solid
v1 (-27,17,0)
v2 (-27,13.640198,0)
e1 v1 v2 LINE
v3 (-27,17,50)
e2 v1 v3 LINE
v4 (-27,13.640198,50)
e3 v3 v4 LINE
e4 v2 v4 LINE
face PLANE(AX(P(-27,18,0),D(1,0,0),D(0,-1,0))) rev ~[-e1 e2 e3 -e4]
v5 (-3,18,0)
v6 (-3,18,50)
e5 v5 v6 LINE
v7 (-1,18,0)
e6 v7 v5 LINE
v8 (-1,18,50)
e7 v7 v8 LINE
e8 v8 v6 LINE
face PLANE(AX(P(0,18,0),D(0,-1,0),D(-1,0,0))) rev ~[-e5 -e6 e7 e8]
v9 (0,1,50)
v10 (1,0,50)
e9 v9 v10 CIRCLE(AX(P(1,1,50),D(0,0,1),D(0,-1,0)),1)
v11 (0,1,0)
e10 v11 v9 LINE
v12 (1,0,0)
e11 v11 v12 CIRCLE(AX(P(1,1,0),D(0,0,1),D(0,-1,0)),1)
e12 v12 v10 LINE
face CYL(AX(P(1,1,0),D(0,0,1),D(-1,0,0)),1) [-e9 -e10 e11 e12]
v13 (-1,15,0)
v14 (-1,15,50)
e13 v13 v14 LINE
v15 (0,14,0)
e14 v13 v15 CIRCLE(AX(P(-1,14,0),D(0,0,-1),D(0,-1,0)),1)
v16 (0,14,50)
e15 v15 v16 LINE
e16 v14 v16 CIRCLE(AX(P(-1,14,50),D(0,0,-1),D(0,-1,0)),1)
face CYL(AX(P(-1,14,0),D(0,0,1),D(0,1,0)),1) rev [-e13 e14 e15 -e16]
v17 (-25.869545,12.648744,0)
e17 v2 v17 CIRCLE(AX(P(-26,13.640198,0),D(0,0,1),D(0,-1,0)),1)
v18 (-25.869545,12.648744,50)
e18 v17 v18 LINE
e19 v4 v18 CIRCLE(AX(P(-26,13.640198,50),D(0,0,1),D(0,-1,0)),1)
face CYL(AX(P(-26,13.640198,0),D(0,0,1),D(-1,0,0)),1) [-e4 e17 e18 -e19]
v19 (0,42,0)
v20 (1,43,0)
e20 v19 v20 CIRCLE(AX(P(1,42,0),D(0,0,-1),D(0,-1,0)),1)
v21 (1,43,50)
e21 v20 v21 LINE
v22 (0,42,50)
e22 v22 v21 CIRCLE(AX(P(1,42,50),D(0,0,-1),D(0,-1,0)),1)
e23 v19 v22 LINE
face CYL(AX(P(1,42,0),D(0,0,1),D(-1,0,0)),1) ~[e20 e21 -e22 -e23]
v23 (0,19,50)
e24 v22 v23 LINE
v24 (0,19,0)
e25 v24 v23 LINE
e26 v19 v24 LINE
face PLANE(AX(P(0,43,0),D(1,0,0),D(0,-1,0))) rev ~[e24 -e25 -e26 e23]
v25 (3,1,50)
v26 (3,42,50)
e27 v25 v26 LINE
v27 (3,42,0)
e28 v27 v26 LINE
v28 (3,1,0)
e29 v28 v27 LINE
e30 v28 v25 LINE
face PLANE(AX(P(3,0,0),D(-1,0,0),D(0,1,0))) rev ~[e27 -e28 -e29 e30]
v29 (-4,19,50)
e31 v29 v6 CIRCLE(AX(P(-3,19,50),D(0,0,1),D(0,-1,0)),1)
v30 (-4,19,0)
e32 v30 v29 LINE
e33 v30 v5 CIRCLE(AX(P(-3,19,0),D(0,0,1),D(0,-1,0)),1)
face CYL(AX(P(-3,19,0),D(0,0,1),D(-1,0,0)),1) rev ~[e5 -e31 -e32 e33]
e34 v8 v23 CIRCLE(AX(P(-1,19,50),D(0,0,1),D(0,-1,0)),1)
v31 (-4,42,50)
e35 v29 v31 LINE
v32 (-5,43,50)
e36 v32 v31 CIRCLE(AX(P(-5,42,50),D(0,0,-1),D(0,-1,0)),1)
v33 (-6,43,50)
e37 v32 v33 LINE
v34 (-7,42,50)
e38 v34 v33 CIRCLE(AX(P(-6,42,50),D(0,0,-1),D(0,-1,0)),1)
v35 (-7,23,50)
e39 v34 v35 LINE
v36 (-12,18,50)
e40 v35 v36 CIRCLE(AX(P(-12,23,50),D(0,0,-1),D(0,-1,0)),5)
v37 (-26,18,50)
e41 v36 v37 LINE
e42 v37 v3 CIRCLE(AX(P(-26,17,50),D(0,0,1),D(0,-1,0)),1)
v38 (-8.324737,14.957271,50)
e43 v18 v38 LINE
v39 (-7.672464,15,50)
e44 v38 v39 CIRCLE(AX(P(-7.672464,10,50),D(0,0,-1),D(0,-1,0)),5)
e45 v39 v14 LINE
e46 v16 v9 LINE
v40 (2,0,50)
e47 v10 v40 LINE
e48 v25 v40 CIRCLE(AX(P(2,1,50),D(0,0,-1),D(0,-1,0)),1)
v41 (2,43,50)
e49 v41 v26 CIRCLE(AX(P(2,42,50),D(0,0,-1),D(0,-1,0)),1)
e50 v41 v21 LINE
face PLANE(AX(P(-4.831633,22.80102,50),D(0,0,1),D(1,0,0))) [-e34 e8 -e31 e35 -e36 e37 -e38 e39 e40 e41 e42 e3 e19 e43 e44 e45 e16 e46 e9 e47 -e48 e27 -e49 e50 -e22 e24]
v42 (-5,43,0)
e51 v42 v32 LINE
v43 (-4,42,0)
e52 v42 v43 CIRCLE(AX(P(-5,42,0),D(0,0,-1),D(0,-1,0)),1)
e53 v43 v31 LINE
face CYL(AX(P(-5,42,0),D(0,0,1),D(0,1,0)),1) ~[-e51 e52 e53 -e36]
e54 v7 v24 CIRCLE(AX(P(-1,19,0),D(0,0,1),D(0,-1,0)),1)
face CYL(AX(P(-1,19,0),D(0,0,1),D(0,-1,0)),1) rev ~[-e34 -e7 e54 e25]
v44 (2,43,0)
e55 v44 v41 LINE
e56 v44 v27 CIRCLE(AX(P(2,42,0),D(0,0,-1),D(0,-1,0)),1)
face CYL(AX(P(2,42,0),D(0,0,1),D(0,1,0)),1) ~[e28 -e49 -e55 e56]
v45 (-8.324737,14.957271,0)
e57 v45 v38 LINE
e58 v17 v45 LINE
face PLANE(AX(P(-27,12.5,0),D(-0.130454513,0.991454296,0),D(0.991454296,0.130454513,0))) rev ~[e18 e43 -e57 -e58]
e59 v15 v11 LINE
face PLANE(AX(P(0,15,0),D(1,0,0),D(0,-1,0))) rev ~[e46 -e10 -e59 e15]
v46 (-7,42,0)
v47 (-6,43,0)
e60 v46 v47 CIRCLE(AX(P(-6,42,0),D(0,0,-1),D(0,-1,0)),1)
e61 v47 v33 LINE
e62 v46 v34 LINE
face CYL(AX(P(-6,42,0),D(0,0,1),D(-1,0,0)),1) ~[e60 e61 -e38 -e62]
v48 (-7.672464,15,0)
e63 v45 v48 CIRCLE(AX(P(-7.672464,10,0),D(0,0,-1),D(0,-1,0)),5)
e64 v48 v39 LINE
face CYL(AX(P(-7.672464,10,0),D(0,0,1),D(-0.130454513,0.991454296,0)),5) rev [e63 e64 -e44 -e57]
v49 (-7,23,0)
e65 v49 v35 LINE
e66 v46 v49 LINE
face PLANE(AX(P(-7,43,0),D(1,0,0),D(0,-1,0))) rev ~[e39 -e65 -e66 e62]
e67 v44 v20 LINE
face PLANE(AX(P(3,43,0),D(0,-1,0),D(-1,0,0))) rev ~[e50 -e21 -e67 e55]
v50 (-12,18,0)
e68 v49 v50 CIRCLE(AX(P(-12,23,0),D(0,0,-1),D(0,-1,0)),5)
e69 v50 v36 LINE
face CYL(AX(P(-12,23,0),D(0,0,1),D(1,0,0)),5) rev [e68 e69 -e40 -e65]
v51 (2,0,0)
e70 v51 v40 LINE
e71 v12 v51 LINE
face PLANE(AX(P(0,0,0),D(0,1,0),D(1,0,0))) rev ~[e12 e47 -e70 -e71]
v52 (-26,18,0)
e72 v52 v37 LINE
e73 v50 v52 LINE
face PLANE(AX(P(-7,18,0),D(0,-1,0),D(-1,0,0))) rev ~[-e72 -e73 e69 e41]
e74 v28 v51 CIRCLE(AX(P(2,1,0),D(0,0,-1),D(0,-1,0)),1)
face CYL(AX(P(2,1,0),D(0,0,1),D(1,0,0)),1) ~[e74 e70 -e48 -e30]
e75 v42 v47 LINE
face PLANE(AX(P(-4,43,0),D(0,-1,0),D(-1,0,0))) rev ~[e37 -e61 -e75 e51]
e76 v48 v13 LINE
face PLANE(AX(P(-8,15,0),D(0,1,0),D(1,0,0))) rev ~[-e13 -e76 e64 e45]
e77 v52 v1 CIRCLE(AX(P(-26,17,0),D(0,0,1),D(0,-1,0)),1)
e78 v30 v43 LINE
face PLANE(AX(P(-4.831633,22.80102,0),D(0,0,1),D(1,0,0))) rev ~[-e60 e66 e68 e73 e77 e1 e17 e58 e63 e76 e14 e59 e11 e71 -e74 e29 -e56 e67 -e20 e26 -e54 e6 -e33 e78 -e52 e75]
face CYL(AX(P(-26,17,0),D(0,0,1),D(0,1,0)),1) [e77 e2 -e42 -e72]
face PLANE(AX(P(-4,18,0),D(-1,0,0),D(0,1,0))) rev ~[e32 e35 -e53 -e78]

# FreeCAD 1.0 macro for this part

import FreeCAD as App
import Part
import Sketcher

V = App.Vector


def edges_at(feature, points):
    """Names of the edges that pass closest to the given points."""
    edges = feature.Shape.Edges
    near = lambda p: min(range(len(edges)), key=lambda i: edges[i].distToShape(Part.Vertex(*p))[0])
    return sorted({f"Edge{near(p) + 1}" for p in points})


def add_polygon(sketch, points):
    """Adds a closed chain of lines whose ends are joined by coincident constraints."""
    first, n = sketch.GeometryCount, len(points)
    for a, b in zip(points, points[1:] + points[:1]):
        sketch.addGeometry(Part.LineSegment(App.Vector(*a, 0), App.Vector(*b, 0)), False)
    for i in range(n):
        sketch.addConstraint(Sketcher.Constraint("Coincident", first + i, 2, first + (i + 1) % n, 1))

doc = App.newDocument("Part")
body = doc.addObject("PartDesign::Body", "Body")

sketch1 = doc.addObject("Sketcher::SketchObject", "Sketch")
body.addObject(sketch1)
sketch1.AttachmentSupport = (doc.XY_Plane, [""])
sketch1.MapMode = "FlatFace"
add_polygon(sketch1, [(0, 15), (0, 0), (3, 0), (3, 43), (0, 43), (0, 18), (-4, 18), (-4, 43), (-7, 43), (-7, 18), (-27, 18), (-27, 12.5), (-8, 15)])
sketch1.addConstraint(Sketcher.Constraint("Vertical", 0))
sketch1.addConstraint(Sketcher.Constraint("Horizontal", 1))
sketch1.addConstraint(Sketcher.Constraint("Vertical", 2))
sketch1.addConstraint(Sketcher.Constraint("Horizontal", 3))
sketch1.addConstraint(Sketcher.Constraint("Vertical", 4))
sketch1.addConstraint(Sketcher.Constraint("Horizontal", 5))
sketch1.addConstraint(Sketcher.Constraint("Vertical", 6))
sketch1.addConstraint(Sketcher.Constraint("Horizontal", 7))
sketch1.addConstraint(Sketcher.Constraint("Vertical", 8))
sketch1.addConstraint(Sketcher.Constraint("Horizontal", 9))
sketch1.addConstraint(Sketcher.Constraint("Vertical", 10))
sketch1.addConstraint(Sketcher.Constraint("Horizontal", 12))
sketch1.addConstraint(Sketcher.Constraint("Coincident", 0, 2, -1, 1))
sketch1.addConstraint(Sketcher.Constraint("PointOnObject", 3, 2, -2))
sketch1.addConstraint(Sketcher.Constraint("Horizontal", 3, 2, 6, 2))
sketch1.addConstraint(Sketcher.Constraint("Horizontal", 5, 2, 8, 2))
sketch1.addConstraint(Sketcher.Constraint("Equal", 3, 7))
sketch1.addConstraint(Sketcher.Constraint("DistanceX", 1, 1, 1, 2, 3.0))
sketch1.addConstraint(Sketcher.Constraint("DistanceX", 5, 2, 5, 1, 4.0))
sketch1.addConstraint(Sketcher.Constraint("DistanceX", 9, 2, 9, 1, 20.0))
sketch1.addConstraint(Sketcher.Constraint("DistanceX", 12, 1, 12, 2, 8.0))
sketch1.addConstraint(Sketcher.Constraint("DistanceY", 0, 2, 0, 1, 15.0))
sketch1.addConstraint(Sketcher.Constraint("DistanceY", 2, 1, 2, 2, 43.0))
sketch1.addConstraint(Sketcher.Constraint("DistanceY", 4, 2, 4, 1, 25.0))
sketch1.addConstraint(Sketcher.Constraint("DistanceY", 10, 2, 10, 1, 5.5))
pad1 = doc.addObject("PartDesign::Pad", "Pad")
body.addObject(pad1)
pad1.Profile = sketch1
pad1.Length = 50
doc.recompute()

fillet = doc.addObject("PartDesign::Fillet", "Fillet")
body.addObject(fillet)
fillet.Base = (pad1, edges_at(pad1, [(-8, 15, 25), (-7, 18, 25)]))
fillet.Radius = 5
doc.recompute()

fillet2 = doc.addObject("PartDesign::Fillet", "Fillet001")
body.addObject(fillet2)
fillet2.Base = (fillet, edges_at(fillet, [
    (-7, 43, 25),
    (-4, 43, 25),
    (0, 43, 25),
    (3, 43, 25),
    (0, 0, 25),
    (3, 0, 25),
    (0, 15, 25),
    (-4, 18, 25),
    (0, 18, 25),
    (-27, 12.5, 25),
    (-27, 18, 25),
]))
fillet2.Radius = 1

doc.recompute()
